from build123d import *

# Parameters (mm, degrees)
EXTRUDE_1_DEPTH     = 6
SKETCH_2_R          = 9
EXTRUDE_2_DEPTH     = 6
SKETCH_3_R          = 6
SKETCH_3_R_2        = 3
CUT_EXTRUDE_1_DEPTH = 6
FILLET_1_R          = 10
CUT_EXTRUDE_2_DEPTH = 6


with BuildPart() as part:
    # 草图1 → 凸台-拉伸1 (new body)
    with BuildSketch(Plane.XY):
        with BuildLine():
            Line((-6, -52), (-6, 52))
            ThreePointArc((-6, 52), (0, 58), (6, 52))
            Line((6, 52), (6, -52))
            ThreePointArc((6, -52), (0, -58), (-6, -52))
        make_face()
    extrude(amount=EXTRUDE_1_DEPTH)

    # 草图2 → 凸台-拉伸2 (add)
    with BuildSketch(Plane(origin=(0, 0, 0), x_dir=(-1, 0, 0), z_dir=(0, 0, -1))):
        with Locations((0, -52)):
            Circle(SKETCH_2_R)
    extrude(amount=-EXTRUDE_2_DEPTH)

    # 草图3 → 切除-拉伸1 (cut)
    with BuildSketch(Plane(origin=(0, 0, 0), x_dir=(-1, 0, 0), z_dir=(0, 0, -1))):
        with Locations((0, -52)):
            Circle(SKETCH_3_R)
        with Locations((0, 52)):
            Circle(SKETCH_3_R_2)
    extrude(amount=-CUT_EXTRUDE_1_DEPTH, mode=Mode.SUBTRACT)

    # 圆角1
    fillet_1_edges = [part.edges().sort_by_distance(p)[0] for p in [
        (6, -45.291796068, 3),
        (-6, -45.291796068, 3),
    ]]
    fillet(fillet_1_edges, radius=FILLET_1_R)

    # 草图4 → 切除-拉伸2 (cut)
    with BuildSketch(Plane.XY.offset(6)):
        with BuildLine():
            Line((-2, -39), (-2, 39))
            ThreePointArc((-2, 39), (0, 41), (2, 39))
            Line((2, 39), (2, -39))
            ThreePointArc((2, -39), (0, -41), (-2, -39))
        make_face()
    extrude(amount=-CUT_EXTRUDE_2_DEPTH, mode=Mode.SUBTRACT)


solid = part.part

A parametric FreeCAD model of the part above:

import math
import FreeCAD as App
import Part
import Sketcher

V = App.Vector
Q = App.Units.Quantity


def edges_at(feature, points):
    """Names of the edges that pass closest to the given points."""
    edges = feature.Shape.Edges
    near = lambda p: min(range(len(edges)), key=lambda i: edges[i].distToShape(Part.Vertex(*p))[0])
    return sorted({f"Edge{near(p) + 1}" for p in points})

doc = App.newDocument("Part")
body = doc.addObject("PartDesign::Body", "Body")

# Sketch on XY plane
sketch1 = body.newObject("Sketcher::SketchObject", "Sketch")
sketch1.AttachmentSupport = (doc.getObject("XY_Plane"), [""])
sketch1.MapMode = "FlatFace"
sketch1.addGeometry(Part.LineSegment(V(-6, 52, 0), V(-6, -52, 0)), False)
sketch1.addGeometry(Part.ArcOfCircle(Part.Circle(V(0, -52, 0), V(0, 0, 1), 6), math.radians(180), math.radians(360)), False)
sketch1.addGeometry(Part.LineSegment(V(6, -52, 0), V(6, 52, 0)), False)
sketch1.addGeometry(Part.ArcOfCircle(Part.Circle(V(0, 52, 0), V(0, 0, 1), 6), math.radians(0), math.radians(180)), False)
sketch1.addConstraint(Sketcher.Constraint("Tangent", 0, 2, 1, 1))
sketch1.addConstraint(Sketcher.Constraint("Tangent", 1, 2, 2, 1))
sketch1.addConstraint(Sketcher.Constraint("Tangent", 2, 2, 3, 1))
sketch1.addConstraint(Sketcher.Constraint("Tangent", 3, 2, 0, 1))
sketch1.addConstraint(Sketcher.Constraint("Vertical", 0))
sketch1.addConstraint(Sketcher.Constraint("Vertical", 2))
sketch1.addConstraint(Sketcher.Constraint("Symmetric", 1, 3, 3, 3, -1, 1))
sketch1.addConstraint(Sketcher.Constraint("Radius", 1, Q("6 mm")))
sketch1.addConstraint(Sketcher.Constraint("DistanceY", 0, 2, 0, 1, Q("104 mm")))
pad1 = body.newObject("PartDesign::Pad", "Pad")
pad1.Profile = sketch1
pad1.Length = 6

# Sketch on XY plane
sketch2 = body.newObject("Sketcher::SketchObject", "Sketch001")
sketch2.AttachmentSupport = (doc.getObject("XY_Plane"), [""])
sketch2.MapMode = "FlatFace"
sketch2.addGeometry(Part.Circle(V(0, -52, 0), V(0, 0, 1), 9), False)
sketch2.addConstraint(Sketcher.Constraint("PointOnObject", 0, 3, -2))
sketch2.addConstraint(Sketcher.Constraint("Diameter", 0, Q("18 mm")))
sketch2.addConstraint(Sketcher.Constraint("DistanceY", 0, 3, -1, 1, Q("52 mm")))
pad2 = body.newObject("PartDesign::Pad", "Pad001")
pad2.Profile = sketch2
pad2.Length = 6

# Sketch on XY plane
sketch3 = body.newObject("Sketcher::SketchObject", "Sketch002")
sketch3.AttachmentSupport = (doc.getObject("XY_Plane"), [""])
sketch3.MapMode = "FlatFace"
sketch3.addGeometry(Part.Circle(V(0, -52, 0), V(0, 0, 1), 6), False)
sketch3.addGeometry(Part.Circle(V(0, 52, 0), V(0, 0, 1), 3), False)
sketch3.addConstraint(Sketcher.Constraint("Symmetric", 0, 3, 1, 3, -1, 1))
sketch3.addConstraint(Sketcher.Constraint("PointOnObject", 0, 3, -2))
sketch3.addConstraint(Sketcher.Constraint("Diameter", 0, Q("12 mm")))
sketch3.addConstraint(Sketcher.Constraint("Diameter", 1, Q("6 mm")))
sketch3.addConstraint(Sketcher.Constraint("DistanceY", 0, 3, -1, 1, Q("52 mm")))
pocket1 = body.newObject("PartDesign::Pocket", "Pocket")
pocket1.Profile = sketch3
pocket1.Length = 6
pocket1.Reversed = True
doc.recompute()

fillet = body.newObject("PartDesign::Fillet", "Fillet")
fillet.Base = (pocket1, edges_at(pocket1, [(6, -45.292, 3), (-6, -45.292, 3)]))
fillet.Radius = 10

# Sketch on XY plane
sketch4 = body.newObject("Sketcher::SketchObject", "Sketch003")
sketch4.AttachmentSupport = (doc.getObject("XY_Plane"), [""])
sketch4.MapMode = "FlatFace"
sketch4.AttachmentOffset = App.Placement(V(0, 0, 6), App.Rotation())
sketch4.addGeometry(Part.LineSegment(V(-2, 39, 0), V(-2, -39, 0)), False)
sketch4.addGeometry(Part.ArcOfCircle(Part.Circle(V(0, -39, 0), V(0, 0, 1), 2), math.radians(180), math.radians(360)), False)
sketch4.addGeometry(Part.LineSegment(V(2, -39, 0), V(2, 39, 0)), False)
sketch4.addGeometry(Part.ArcOfCircle(Part.Circle(V(0, 39, 0), V(0, 0, 1), 2), math.radians(0), math.radians(180)), False)
sketch4.addConstraint(Sketcher.Constraint("Tangent", 0, 2, 1, 1))
sketch4.addConstraint(Sketcher.Constraint("Tangent", 1, 2, 2, 1))
sketch4.addConstraint(Sketcher.Constraint("Tangent", 2, 2, 3, 1))
sketch4.addConstraint(Sketcher.Constraint("Tangent", 3, 2, 0, 1))
sketch4.addConstraint(Sketcher.Constraint("Vertical", 0))
sketch4.addConstraint(Sketcher.Constraint("Vertical", 2))
sketch4.addConstraint(Sketcher.Constraint("Symmetric", 1, 3, 3, 3, -1, 1))
sketch4.addConstraint(Sketcher.Constraint("Radius", 1, Q("2 mm")))
sketch4.addConstraint(Sketcher.Constraint("DistanceY", 0, 2, 0, 1, Q("78 mm")))
pocket2 = body.newObject("PartDesign::Pocket", "Pocket001")
pocket2.Profile = sketch4
pocket2.Length = 6

doc.recompute()
